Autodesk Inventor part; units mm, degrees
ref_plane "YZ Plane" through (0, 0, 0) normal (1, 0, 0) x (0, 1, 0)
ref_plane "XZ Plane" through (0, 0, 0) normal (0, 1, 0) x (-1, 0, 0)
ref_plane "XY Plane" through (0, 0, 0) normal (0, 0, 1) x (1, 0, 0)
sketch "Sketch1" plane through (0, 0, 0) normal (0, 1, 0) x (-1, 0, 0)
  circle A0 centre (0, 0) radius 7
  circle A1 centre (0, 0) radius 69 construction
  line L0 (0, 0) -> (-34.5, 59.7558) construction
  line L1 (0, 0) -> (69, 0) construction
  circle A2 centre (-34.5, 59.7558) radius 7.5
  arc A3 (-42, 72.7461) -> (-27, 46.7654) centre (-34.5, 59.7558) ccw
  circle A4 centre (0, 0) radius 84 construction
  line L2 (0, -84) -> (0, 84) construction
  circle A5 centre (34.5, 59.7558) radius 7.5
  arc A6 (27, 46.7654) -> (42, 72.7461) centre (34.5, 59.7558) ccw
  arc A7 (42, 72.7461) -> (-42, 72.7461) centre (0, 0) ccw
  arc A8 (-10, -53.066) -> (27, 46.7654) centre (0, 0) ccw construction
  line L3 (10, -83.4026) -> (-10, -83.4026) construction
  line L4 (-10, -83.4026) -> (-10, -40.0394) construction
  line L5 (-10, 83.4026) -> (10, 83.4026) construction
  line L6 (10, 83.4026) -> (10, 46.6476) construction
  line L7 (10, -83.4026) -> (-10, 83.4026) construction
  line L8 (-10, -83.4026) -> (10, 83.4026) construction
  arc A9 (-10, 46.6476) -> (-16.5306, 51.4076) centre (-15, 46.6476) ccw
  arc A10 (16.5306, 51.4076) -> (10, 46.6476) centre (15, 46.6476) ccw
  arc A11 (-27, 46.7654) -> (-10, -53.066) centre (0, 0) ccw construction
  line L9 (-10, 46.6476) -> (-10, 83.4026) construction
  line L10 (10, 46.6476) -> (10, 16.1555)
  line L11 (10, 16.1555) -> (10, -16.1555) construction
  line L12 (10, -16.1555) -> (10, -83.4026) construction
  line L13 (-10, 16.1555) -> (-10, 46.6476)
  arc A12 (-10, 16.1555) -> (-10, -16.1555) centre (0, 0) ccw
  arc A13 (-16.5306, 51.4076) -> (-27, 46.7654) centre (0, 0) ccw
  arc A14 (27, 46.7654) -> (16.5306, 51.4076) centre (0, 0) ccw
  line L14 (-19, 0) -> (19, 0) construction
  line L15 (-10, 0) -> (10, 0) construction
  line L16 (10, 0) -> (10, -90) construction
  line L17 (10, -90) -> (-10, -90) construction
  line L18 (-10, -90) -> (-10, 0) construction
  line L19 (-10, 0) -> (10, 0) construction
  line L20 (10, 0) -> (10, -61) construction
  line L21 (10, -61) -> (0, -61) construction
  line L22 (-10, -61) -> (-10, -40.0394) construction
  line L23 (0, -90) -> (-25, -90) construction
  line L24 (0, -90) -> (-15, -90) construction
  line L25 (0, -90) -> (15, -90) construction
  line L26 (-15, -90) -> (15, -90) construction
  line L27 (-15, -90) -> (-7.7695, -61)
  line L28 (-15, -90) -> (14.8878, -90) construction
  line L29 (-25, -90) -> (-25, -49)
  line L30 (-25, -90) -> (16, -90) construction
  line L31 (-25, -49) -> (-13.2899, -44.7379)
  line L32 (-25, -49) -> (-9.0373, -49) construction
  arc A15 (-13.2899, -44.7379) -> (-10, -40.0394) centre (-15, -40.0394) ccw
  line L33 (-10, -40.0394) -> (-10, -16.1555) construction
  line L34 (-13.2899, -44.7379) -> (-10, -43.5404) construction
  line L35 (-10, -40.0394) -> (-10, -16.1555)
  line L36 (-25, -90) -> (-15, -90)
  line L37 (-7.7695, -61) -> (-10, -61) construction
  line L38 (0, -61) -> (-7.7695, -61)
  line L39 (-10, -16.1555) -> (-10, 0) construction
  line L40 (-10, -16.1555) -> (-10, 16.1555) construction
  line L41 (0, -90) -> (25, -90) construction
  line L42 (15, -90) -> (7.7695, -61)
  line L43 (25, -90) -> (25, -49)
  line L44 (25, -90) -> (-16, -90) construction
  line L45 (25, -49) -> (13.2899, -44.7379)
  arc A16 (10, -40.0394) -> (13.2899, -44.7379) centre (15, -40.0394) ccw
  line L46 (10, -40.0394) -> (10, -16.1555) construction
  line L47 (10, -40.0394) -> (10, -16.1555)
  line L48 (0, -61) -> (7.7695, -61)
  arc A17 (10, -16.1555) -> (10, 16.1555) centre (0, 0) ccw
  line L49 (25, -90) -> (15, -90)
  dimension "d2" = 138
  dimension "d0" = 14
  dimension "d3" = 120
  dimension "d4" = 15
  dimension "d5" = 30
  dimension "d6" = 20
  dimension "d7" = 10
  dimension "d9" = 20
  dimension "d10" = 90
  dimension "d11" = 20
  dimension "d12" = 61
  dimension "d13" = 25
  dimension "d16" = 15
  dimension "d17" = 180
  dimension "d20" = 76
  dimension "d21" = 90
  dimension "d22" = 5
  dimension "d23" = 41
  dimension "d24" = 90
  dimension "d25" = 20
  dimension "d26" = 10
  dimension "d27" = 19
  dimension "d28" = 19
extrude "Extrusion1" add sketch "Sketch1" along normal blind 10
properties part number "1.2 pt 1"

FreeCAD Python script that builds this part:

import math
import FreeCAD as App
import Part
import Sketcher

V = App.Vector
Q = App.Units.Quantity

doc = App.newDocument("Part")
body = doc.addObject("PartDesign::Body", "Body")

# Sketch on XZ plane
sketch1 = body.newObject("Sketcher::SketchObject", "Sketch")
sketch1.AttachmentSupport = (doc.getObject("XZ_Plane"), [""])
sketch1.MapMode = "FlatFace"
sketch1.addGeometry([
    Part.ArcOfCircle(Part.Circle(V(0, 0, 0), V(0, 0, 1), 84), math.radians(60), math.radians(120)),  # 0
    Part.ArcOfCircle(Part.Circle(V(34, 60, 0), V(0, 0, 1), 15), math.radians(-120), math.radians(60)),  # 1
    Part.ArcOfCircle(Part.Circle(V(0, 0, 0), V(0, 0, 1), 54), math.radians(60), math.radians(72.17)),  # 2
    Part.ArcOfCircle(Part.Circle(V(15, 47, 0), V(0, 0, 1), 5), math.radians(72), math.radians(180)),  # 3
    Part.LineSegment(V(10, 47, 0), V(10, 16, 0)),  # 4
    Part.ArcOfCircle(Part.Circle(V(0, 0, 0), V(0, 0, 1), 19), math.radians(-58), math.radians(58)),  # 5
    Part.LineSegment(V(10, -16, 0), V(10, -40, 0)),  # 6
    Part.ArcOfCircle(Part.Circle(V(15, -40, 0), V(0, 0, 1), 5), math.radians(180), math.radians(250)),  # 7
    Part.LineSegment(V(13, -45, 0), V(25, -49, 0)),  # 8
    Part.LineSegment(V(25, -49, 0), V(25, -90, 0)),  # 9
    Part.LineSegment(V(25, -90, 0), V(15, -90, 0)),  # 10
    Part.LineSegment(V(15, -90, 0), V(8, -61, 0)),  # 11
    Part.LineSegment(V(8, -61, 0), V(-8, -61, 0)),  # 12
    Part.LineSegment(V(-8, -61, 0), V(-15, -90, 0)),  # 13
    Part.LineSegment(V(-15, -90, 0), V(-25, -90, 0)),  # 14
    Part.LineSegment(V(-25, -90, 0), V(-25, -49, 0)),  # 15
    Part.LineSegment(V(-25, -49, 0), V(-13, -45, 0)),  # 16
    Part.ArcOfCircle(Part.Circle(V(-15, -40, 0), V(0, 0, 1), 5), math.radians(-70), math.radians(0)),  # 17
    Part.LineSegment(V(-10, -40, 0), V(-10, -16, 0)),  # 18
    Part.ArcOfCircle(Part.Circle(V(0, 0, 0), V(0, 0, 1), 19), math.radians(122), math.radians(238)),  # 19
    Part.LineSegment(V(-10, 16, 0), V(-10, 47, 0)),  # 20
    Part.ArcOfCircle(Part.Circle(V(-15, 47, 0), V(0, 0, 1), 5), math.radians(0), math.radians(108)),  # 21
    Part.ArcOfCircle(Part.Circle(V(0, 0, 0), V(0, 0, 1), 54), math.radians(107.83), math.radians(120)),  # 22
    Part.ArcOfCircle(Part.Circle(V(-34, 60, 0), V(0, 0, 1), 15), math.radians(120), math.radians(300)),  # 23
    Part.Circle(V(0, 0, 0), V(0, 0, 1), 7),  # 24
    Part.Circle(V(34, 60, 0), V(0, 0, 1), 8),  # 25
    Part.Circle(V(-34, 60, 0), V(0, 0, 1), 8),  # 26
], False)
sketch1.addConstraint([
    Sketcher.Constraint("Tangent", 0, 1, 1, 2),
    Sketcher.Constraint("Tangent", 1, 1, 2, 1),
    Sketcher.Constraint("Tangent", 2, 2, 3, 1),
    Sketcher.Constraint("Tangent", 3, 2, 4, 1),
    Sketcher.Constraint("Coincident", 4, 2, 5, 2),
    Sketcher.Constraint("Coincident", 5, 1, 6, 1),
    Sketcher.Constraint("Tangent", 6, 2, 7, 1),
    Sketcher.Constraint("Tangent", 7, 2, 8, 1),
    Sketcher.Constraint("Coincident", 8, 2, 9, 1),
    Sketcher.Constraint("Coincident", 9, 2, 10, 1),
    Sketcher.Constraint("Coincident", 10, 2, 11, 1),
    Sketcher.Constraint("Coincident", 11, 2, 12, 1),
    Sketcher.Constraint("Coincident", 12, 2, 13, 1),
    Sketcher.Constraint("Coincident", 13, 2, 14, 1),
    Sketcher.Constraint("Coincident", 14, 2, 15, 1),
    Sketcher.Constraint("Coincident", 15, 2, 16, 1),
    Sketcher.Constraint("Tangent", 16, 2, 17, 1),
    Sketcher.Constraint("Tangent", 17, 2, 18, 1),
    Sketcher.Constraint("Coincident", 18, 2, 19, 2),
    Sketcher.Constraint("Coincident", 19, 1, 20, 1),
    Sketcher.Constraint("Tangent", 20, 2, 21, 1),
    Sketcher.Constraint("Tangent", 21, 2, 22, 1),
    Sketcher.Constraint("Tangent", 22, 2, 23, 2),
    Sketcher.Constraint("Tangent", 23, 1, 0, 2),
    Sketcher.Constraint("Vertical", 4),
    Sketcher.Constraint("Vertical", 6),
    Sketcher.Constraint("Vertical", 9),
    Sketcher.Constraint("Horizontal", 10),
    Sketcher.Constraint("Horizontal", 12),
    Sketcher.Constraint("Horizontal", 14),
    Sketcher.Constraint("Vertical", 15),
    Sketcher.Constraint("Vertical", 18),
    Sketcher.Constraint("Vertical", 20),
    Sketcher.Constraint("Coincident", 0, 3, -1, 1),
    Sketcher.Constraint("Coincident", 2, 3, -1, 1),
    Sketcher.Constraint("Coincident", 5, 3, -1, 1),
    Sketcher.Constraint("Coincident", 19, 3, -1, 1),
    Sketcher.Constraint("Coincident", 22, 3, -1, 1),
    Sketcher.Constraint("Coincident", 24, 3, -1, 1),
    Sketcher.Constraint("Coincident", 25, 3, 1, 3),
    Sketcher.Constraint("Coincident", 26, 3, 23, 3),
    Sketcher.Constraint("Equal", 3, 7),
    Sketcher.Constraint("Equal", 7, 17),
    Sketcher.Constraint("Equal", 5, 19),
    Sketcher.Constraint("Equal", 17, 21),
    Sketcher.Constraint("Equal", 2, 22),
    Sketcher.Constraint("Equal", 25, 26),
    Sketcher.Constraint("Symmetric", 7, 3, 17, 3, -2),
    Sketcher.Constraint("Symmetric", 10, 2, 13, 2, -2),
    Sketcher.Constraint("Symmetric", 8, 2, 15, 2, -2),
    Sketcher.Constraint("Horizontal", 3, 3, 21, 3),
    Sketcher.Constraint("Horizontal", 1, 3, 23, 3),
    Sketcher.Constraint("Vertical", 3, 3, 7, 3),
    Sketcher.Constraint("Vertical", 7, 3, 10, 2),
    Sketcher.Constraint("Equal", 11, 13),
    Sketcher.Constraint("Diameter", 24, Q("14 mm")),
    Sketcher.Constraint("Diameter", 25, Q("15 mm")),
    Sketcher.Constraint("Radius", 1, Q("15 mm")),
    Sketcher.Constraint("Radius", 3, Q("5 mm")),
    Sketcher.Constraint("Radius", 5, Q("19 mm")),
    Sketcher.Constraint("DistanceX", 10, 2, 10, 1, Q("10 mm")),
    Sketcher.Constraint("DistanceY", 9, 2, 9, 1, Q("41 mm")),
    Sketcher.Constraint("Angle", 8, Q("-19.9999 deg")),
    Sketcher.Constraint("DistanceX", -1, 1, 3, 3, Q("15 mm")),
    Sketcher.Constraint("DistanceY", 9, 2, -1, 1, Q("90 mm")),
    Sketcher.Constraint("DistanceY", 11, 2, -1, 1, Q("61 mm")),
    Sketcher.Constraint("Radius", 0, Q("84 mm")),
    Sketcher.Constraint("DistanceX", 1, 1, 0, 1, Q("15 mm")),
    Sketcher.Constraint("Angle", 11, Q("104 deg")),
])
pad1 = body.newObject("PartDesign::Pad", "Pad")
pad1.Profile = sketch1
pad1.Length = 10
pad1.Reversed = True

doc.recompute()
